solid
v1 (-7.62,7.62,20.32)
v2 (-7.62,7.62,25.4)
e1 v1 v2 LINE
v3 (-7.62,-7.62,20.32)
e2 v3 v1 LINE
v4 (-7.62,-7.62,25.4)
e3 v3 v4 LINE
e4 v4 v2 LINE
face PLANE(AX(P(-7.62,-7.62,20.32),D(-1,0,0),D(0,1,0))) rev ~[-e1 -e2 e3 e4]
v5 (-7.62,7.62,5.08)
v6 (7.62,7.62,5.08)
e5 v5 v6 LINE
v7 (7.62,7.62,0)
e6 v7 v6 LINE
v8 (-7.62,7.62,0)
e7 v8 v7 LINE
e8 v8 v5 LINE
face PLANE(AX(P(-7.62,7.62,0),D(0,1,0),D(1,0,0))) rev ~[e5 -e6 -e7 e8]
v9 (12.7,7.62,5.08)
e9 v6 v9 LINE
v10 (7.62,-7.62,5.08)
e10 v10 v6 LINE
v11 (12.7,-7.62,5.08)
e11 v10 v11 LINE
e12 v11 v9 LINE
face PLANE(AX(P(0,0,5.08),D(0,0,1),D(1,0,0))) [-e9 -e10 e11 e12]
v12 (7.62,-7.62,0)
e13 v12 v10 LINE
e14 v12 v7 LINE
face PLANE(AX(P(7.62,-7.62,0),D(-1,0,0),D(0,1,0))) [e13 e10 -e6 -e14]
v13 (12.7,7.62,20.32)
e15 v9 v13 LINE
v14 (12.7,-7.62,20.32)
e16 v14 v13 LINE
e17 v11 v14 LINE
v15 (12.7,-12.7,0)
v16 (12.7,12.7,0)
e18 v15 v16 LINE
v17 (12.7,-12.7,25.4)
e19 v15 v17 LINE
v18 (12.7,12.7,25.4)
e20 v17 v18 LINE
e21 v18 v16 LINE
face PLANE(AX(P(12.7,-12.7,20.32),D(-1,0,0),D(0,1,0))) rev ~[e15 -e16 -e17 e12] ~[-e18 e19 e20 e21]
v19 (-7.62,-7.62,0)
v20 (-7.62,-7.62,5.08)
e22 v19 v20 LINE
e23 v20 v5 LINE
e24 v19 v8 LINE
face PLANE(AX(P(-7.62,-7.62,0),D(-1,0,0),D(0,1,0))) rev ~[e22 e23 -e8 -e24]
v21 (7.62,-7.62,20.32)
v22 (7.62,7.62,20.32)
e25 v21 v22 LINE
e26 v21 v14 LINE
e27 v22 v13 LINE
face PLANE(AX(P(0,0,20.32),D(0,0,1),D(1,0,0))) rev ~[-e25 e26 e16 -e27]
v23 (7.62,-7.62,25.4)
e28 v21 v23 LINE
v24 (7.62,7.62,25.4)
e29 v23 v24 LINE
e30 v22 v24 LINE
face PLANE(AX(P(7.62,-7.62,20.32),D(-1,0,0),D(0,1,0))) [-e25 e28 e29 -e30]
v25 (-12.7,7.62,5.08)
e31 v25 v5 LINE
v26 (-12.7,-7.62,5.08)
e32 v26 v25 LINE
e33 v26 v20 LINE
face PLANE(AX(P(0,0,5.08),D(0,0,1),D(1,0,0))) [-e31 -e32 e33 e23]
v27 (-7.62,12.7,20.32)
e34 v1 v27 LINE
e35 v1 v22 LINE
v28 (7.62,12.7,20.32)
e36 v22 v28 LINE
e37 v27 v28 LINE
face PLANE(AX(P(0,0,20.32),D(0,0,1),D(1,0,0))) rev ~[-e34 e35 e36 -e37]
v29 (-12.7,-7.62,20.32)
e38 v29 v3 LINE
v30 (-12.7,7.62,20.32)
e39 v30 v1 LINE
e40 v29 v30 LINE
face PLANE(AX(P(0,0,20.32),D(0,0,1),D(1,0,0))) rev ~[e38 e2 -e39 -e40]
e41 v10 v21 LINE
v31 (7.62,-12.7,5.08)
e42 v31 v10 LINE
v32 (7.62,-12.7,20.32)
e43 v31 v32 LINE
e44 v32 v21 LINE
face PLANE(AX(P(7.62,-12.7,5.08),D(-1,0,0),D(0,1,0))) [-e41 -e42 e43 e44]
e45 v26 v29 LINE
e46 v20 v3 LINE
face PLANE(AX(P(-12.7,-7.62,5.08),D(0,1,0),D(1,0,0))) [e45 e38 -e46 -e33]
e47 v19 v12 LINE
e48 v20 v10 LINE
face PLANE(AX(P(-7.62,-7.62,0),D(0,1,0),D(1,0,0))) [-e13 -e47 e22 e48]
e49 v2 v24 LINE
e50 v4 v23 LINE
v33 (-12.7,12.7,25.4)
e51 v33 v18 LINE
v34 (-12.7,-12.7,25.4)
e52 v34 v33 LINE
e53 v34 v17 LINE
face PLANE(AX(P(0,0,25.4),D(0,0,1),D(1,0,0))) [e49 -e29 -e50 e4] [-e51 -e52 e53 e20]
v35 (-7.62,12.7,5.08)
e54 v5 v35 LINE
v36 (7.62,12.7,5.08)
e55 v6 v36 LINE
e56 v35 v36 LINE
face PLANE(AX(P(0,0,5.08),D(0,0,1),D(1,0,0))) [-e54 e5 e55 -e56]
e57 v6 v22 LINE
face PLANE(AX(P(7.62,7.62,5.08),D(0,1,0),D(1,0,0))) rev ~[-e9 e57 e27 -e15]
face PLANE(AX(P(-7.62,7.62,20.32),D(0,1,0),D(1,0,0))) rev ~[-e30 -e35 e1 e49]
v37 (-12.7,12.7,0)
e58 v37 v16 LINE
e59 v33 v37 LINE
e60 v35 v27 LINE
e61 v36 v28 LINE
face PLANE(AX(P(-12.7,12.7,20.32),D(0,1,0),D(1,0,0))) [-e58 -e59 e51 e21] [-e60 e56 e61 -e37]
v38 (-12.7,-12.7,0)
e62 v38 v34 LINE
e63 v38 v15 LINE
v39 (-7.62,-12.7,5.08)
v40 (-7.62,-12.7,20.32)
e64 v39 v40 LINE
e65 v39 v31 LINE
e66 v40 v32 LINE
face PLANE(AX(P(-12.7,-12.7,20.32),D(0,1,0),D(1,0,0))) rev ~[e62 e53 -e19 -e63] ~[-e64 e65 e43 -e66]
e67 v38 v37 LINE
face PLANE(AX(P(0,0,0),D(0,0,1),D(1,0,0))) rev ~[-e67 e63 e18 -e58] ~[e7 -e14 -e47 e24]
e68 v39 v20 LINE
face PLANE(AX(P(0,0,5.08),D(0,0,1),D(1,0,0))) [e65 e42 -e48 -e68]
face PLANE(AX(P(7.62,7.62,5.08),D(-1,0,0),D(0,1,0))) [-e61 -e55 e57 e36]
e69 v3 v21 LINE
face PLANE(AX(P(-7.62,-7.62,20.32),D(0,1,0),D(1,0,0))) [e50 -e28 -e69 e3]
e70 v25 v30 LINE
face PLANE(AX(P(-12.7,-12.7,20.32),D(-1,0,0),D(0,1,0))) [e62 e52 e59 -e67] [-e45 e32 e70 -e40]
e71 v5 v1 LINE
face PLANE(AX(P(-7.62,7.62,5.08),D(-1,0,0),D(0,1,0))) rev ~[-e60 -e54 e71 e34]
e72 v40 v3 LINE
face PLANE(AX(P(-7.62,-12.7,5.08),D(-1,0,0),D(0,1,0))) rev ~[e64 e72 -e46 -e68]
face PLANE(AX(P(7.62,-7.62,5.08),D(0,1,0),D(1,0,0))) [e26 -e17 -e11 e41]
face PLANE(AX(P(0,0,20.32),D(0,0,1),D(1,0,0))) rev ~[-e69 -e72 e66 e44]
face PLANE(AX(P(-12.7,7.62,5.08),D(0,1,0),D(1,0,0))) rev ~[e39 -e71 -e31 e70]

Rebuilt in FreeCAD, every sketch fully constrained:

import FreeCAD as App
import Part
import Sketcher

V = App.Vector
Q = App.Units.Quantity


def add_polygon(sketch, points):
    """Adds a closed chain of lines whose ends are joined by coincident constraints."""
    first, n = sketch.GeometryCount, len(points)
    for a, b in zip(points, points[1:] + points[:1]):
        sketch.addGeometry(Part.LineSegment(App.Vector(*a, 0), App.Vector(*b, 0)), False)
    for i in range(n):
        sketch.addConstraint(Sketcher.Constraint("Coincident", first + i, 2, first + (i + 1) % n, 1))

doc = App.newDocument("Part")
body = doc.addObject("PartDesign::Body", "Body")

# Sketch on XY plane
sketch1 = body.newObject("Sketcher::SketchObject", "Sketch")
sketch1.AttachmentSupport = (doc.getObject("XY_Plane"), [""])
sketch1.MapMode = "FlatFace"
add_polygon(sketch1, [(-13, 13), (-13, -13), (13, -13), (13, 13)])  # lines 0-3
add_polygon(sketch1, [(8, -8), (-8, -8), (-8, 8), (8, 8)])  # lines 4-7
sketch1.addConstraint([
    Sketcher.Constraint("Vertical", 0),
    Sketcher.Constraint("Horizontal", 1),
    Sketcher.Constraint("Vertical", 2),
    Sketcher.Constraint("Horizontal", 3),
    Sketcher.Constraint("Horizontal", 4),
    Sketcher.Constraint("Vertical", 5),
    Sketcher.Constraint("Horizontal", 6),
    Sketcher.Constraint("Vertical", 7),
    Sketcher.Constraint("Symmetric", 0, 2, 2, 2, -1, 1),
    Sketcher.Constraint("Symmetric", 4, 2, 6, 2, -1, 1),
    Sketcher.Constraint("Equal", 3, 0),
    Sketcher.Constraint("Equal", 6, 5),
    Sketcher.Constraint("DistanceX", 1, 1, 1, 2, Q("1 in")),
    Sketcher.Constraint("DistanceX", 4, 2, 4, 1, Q("0.6 in")),
])
pad1 = body.newObject("PartDesign::Pad", "Pad")
pad1.Profile = sketch1
pad1.Length = Q("0.2 in")

# Sketch on XY plane
sketch2 = body.newObject("Sketcher::SketchObject", "Sketch001")
sketch2.AttachmentSupport = (doc.getObject("XY_Plane"), [""])
sketch2.MapMode = "FlatFace"
sketch2.AttachmentOffset = App.Placement(V(0, 0, 0.2 * 25.4), App.Rotation())
add_polygon(sketch2, [(-13, 13), (-13, 8), (-8, 8), (-8, 13)])  # lines 0-3
add_polygon(sketch2, [(8, 13), (8, 8), (13, 8), (13, 13)])  # lines 4-7
add_polygon(sketch2, [(8, -8), (8, -13), (13, -13), (13, -8)])  # lines 8-11
add_polygon(sketch2, [(-13, -8), (-13, -13), (-8, -13), (-8, -8)])  # lines 12-15
sketch2.addConstraint([
    Sketcher.Constraint("Vertical", 0),
    Sketcher.Constraint("Horizontal", 1),
    Sketcher.Constraint("Vertical", 2),
    Sketcher.Constraint("Horizontal", 3),
    Sketcher.Constraint("Vertical", 4),
    Sketcher.Constraint("Horizontal", 5),
    Sketcher.Constraint("Vertical", 6),
    Sketcher.Constraint("Horizontal", 7),
    Sketcher.Constraint("Vertical", 8),
    Sketcher.Constraint("Horizontal", 9),
    Sketcher.Constraint("Vertical", 10),
    Sketcher.Constraint("Horizontal", 11),
    Sketcher.Constraint("Vertical", 12),
    Sketcher.Constraint("Horizontal", 13),
    Sketcher.Constraint("Vertical", 14),
    Sketcher.Constraint("Horizontal", 15),
    Sketcher.Constraint("Symmetric", 2, 2, 8, 2, -1, 1),
    Sketcher.Constraint("Symmetric", 0, 2, 10, 2, -1, 1),
    Sketcher.Constraint("Symmetric", 6, 2, 12, 2, -1, 1),
    Sketcher.Constraint("Symmetric", 4, 2, 14, 2, -1, 1),
    Sketcher.Constraint("Symmetric", 1, 2, 4, 2, -2),
    Sketcher.Constraint("Symmetric", 3, 2, 6, 2, -2),
    Sketcher.Constraint("Equal", 15, 0),
    Sketcher.Constraint("DistanceX", 1, 1, 1, 2, Q("0.2 in")),
    Sketcher.Constraint("DistanceX", 0, 2, 5, 2, Q("1 in")),
    Sketcher.Constraint("DistanceY", 8, 2, 7, 2, Q("1 in")),
])
pad2 = body.newObject("PartDesign::Pad", "Pad001")
pad2.Profile = sketch2
pad2.Length = Q("0.6 in")

# Sketch on XY plane
sketch3 = body.newObject("Sketcher::SketchObject", "Sketch002")
sketch3.AttachmentSupport = (doc.getObject("XY_Plane"), [""])
sketch3.MapMode = "FlatFace"
sketch3.AttachmentOffset = App.Placement(V(0, 0, 0.8 * 25.4), App.Rotation())
add_polygon(sketch3, [(-13, 13), (-13, -13), (13, -13), (13, 13)])  # lines 0-3
add_polygon(sketch3, [(8, -8), (-8, -8), (-8, 8), (8, 8)])  # lines 4-7
sketch3.addConstraint([
    Sketcher.Constraint("Vertical", 0),
    Sketcher.Constraint("Horizontal", 1),
    Sketcher.Constraint("Vertical", 2),
    Sketcher.Constraint("Horizontal", 3),
    Sketcher.Constraint("Horizontal", 4),
    Sketcher.Constraint("Vertical", 5),
    Sketcher.Constraint("Horizontal", 6),
    Sketcher.Constraint("Vertical", 7),
    Sketcher.Constraint("Symmetric", 0, 2, 2, 2, -1, 1),
    Sketcher.Constraint("Symmetric", 4, 2, 6, 2, -1, 1),
    Sketcher.Constraint("Equal", 3, 0),
    Sketcher.Constraint("Equal", 6, 5),
    Sketcher.Constraint("DistanceX", 1, 1, 1, 2, Q("1 in")),
    Sketcher.Constraint("DistanceX", 4, 2, 4, 1, Q("0.6 in")),
])
pad3 = body.newObject("PartDesign::Pad", "Pad002")
pad3.Profile = sketch3
pad3.Length = Q("0.2 in")

doc.recompute()
